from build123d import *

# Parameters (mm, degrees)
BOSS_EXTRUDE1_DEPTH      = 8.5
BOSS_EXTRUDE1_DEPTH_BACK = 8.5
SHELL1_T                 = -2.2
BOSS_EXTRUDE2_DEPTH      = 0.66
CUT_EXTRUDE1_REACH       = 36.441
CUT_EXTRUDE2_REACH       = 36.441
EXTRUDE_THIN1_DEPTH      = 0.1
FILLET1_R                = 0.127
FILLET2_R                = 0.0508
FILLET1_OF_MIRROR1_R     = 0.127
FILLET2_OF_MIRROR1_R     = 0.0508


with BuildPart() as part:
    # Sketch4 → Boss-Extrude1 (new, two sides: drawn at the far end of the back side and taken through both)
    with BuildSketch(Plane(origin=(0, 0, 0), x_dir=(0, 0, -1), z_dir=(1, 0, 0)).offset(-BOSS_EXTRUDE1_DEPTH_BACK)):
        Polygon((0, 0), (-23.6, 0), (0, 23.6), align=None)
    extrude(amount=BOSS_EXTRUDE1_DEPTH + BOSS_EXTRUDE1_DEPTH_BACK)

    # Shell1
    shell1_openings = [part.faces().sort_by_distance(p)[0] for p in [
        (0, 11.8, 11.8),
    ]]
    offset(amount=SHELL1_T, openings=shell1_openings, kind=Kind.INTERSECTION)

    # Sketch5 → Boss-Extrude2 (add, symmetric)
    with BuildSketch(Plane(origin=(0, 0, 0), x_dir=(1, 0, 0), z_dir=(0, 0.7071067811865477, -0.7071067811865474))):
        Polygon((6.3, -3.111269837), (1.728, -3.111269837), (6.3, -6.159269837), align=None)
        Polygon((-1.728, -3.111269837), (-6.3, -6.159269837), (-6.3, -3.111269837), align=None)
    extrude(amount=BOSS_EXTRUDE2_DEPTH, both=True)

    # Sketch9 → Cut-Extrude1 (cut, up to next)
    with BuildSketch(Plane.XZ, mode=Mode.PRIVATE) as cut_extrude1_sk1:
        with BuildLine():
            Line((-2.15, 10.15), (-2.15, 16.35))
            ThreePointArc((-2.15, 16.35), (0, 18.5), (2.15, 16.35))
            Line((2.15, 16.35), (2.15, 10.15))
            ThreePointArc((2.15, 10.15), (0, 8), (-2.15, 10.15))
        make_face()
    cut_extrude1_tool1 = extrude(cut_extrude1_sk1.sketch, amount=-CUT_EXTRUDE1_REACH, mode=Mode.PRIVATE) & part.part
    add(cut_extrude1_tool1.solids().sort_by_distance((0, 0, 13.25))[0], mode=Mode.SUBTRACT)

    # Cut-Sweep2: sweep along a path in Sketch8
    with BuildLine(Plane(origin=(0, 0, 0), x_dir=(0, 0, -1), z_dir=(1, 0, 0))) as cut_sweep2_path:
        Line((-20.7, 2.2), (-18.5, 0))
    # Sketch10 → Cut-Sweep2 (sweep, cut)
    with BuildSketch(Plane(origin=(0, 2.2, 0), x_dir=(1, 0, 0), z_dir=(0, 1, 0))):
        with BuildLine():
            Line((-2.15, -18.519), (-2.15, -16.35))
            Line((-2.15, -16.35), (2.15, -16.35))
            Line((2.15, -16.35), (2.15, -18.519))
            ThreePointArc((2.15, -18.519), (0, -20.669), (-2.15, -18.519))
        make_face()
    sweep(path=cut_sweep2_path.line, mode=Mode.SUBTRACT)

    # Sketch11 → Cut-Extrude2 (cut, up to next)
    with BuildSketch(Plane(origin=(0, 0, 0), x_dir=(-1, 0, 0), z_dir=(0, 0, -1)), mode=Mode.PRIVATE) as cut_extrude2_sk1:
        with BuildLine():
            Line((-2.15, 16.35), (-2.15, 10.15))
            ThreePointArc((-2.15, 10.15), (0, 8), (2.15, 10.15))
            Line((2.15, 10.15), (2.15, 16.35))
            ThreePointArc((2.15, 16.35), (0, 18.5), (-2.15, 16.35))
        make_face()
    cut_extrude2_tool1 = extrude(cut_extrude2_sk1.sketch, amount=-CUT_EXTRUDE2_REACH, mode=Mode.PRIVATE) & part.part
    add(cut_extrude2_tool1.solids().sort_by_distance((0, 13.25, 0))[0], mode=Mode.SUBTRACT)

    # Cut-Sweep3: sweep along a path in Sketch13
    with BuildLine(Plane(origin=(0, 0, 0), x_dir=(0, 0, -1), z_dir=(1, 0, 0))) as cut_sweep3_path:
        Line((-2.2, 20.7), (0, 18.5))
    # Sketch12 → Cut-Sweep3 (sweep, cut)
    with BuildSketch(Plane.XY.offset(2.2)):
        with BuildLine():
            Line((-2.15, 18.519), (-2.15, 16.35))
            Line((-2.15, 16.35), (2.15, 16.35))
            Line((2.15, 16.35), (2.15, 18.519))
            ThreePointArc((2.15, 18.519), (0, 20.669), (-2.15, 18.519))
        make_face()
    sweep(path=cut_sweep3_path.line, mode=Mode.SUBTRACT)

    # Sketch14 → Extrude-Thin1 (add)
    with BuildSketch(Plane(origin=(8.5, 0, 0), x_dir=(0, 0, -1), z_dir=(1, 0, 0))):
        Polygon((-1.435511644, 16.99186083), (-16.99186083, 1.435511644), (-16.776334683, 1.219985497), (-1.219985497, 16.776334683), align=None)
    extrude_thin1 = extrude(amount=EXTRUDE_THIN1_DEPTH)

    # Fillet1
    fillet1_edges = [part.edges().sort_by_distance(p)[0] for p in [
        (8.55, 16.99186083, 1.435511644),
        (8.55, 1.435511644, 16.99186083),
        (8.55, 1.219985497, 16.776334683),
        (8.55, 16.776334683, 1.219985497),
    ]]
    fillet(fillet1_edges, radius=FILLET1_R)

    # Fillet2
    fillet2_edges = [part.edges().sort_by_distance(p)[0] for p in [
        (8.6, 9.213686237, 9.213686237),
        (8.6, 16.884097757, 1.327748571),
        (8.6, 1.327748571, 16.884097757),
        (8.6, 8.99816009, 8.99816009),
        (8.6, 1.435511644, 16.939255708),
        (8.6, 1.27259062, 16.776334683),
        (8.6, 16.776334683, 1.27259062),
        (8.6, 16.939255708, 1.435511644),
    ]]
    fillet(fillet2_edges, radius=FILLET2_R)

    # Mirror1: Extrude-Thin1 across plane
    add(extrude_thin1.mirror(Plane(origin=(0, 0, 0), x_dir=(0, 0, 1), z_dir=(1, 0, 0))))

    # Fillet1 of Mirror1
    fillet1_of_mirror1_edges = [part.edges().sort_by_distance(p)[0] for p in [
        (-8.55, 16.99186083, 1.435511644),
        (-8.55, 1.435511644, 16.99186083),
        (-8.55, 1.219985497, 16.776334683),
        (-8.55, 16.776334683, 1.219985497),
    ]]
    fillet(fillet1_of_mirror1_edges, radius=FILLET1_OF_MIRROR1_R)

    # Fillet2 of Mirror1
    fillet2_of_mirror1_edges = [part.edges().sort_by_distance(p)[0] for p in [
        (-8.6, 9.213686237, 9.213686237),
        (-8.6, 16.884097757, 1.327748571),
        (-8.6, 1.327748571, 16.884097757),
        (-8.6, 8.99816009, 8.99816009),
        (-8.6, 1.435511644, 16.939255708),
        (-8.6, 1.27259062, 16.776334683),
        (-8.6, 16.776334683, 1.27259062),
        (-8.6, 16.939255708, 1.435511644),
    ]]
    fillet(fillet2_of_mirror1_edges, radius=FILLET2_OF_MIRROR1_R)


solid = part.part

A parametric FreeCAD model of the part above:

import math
import FreeCAD as App
import Part
import Sketcher

V = App.Vector
Q = App.Units.Quantity


def edges_at(feature, points):
    """Names of the edges that pass closest to the given points."""
    edges = feature.Shape.Edges
    near = lambda p: min(range(len(edges)), key=lambda i: edges[i].distToShape(Part.Vertex(*p))[0])
    return sorted({f"Edge{near(p) + 1}" for p in points})


def faces_at(feature, points):
    """Names of the faces that lie closest to the given points."""
    faces = feature.Shape.Faces
    near = lambda p: min(range(len(faces)), key=lambda i: faces[i].distToShape(Part.Vertex(*p))[0])
    return sorted({f"Face{near(p) + 1}" for p in points})

doc = App.newDocument("Part")
params = doc.addObject("Spreadsheet::Sheet", "Params")
for row, (alias, value) in enumerate([
    ("sketch1_width", "23.6 mm"),
    ("pad1_length", "8.5 mm"),
    ("pad1_length2", "8.5 mm"),
    ("thickness_wall", "2.2 mm"),
    ("pad2_length", "1.32 mm"),
    ("sketch3_radius", "2.15 mm"),
    ("sketch3_height", "6.2 mm"),
    ("sketch4_radius", "2.15 mm"),
    ("sketch6_radius", "2.15 mm"),
    ("sketch6_height", "6.2 mm"),
    ("sketch7_radius", "2.15 mm"),
    ("sketch9_length", "22 mm"),
    ("pad3_length", "0.1 mm"),
    ("fillet_radius", "0.127 mm"),
    ("fillet2_radius", "0.0508 mm"),
    ("fillet3_radius", "0.127 mm"),
    ("fillet4_radius", "0.0508 mm"),
], start=1):
    params.set(f"A{row}", alias)
    params.set(f"B{row}", "=" + value)
    params.setAlias(f"B{row}", alias)

body = doc.addObject("PartDesign::Body", "Body")

# Sketch on YZ plane
sketch1 = body.newObject("Sketcher::SketchObject", "Sketch")
sketch1.AttachmentSupport = (doc.getObject("YZ_Plane"), [""])
sketch1.MapMode = "FlatFace"
sketch1.addGeometry([
    Part.LineSegment(V(0, 23.6, 0), V(0, 0, 0)),
    Part.LineSegment(V(0, 0, 0), V(23.6, 0, 0)),
    Part.LineSegment(V(23.6, 0, 0), V(0, 23.6, 0)),
], False)
sketch1.addConstraint([
    Sketcher.Constraint("Coincident", 0, 2, 1, 1),
    Sketcher.Constraint("Coincident", 1, 2, 2, 1),
    Sketcher.Constraint("Coincident", 2, 2, 0, 1),
    Sketcher.Constraint("Vertical", 0),
    Sketcher.Constraint("Horizontal", 1),
    Sketcher.Constraint("Coincident", 0, 2, -1, 1),
    Sketcher.Constraint("Equal", 1, 0),
    Sketcher.Constraint("DistanceX", 1, 1, 1, 2, 23.6),
])
sketch1.setExpression("Constraints[7]", "Params.sketch1_width")
pad1 = body.newObject("PartDesign::Pad", "Pad")
pad1.Profile = sketch1
pad1.Type = "TwoLengths"
pad1.setExpression("Length", "Params.pad1_length")
pad1.setExpression("Length2", "Params.pad1_length2")
doc.recompute()

thickness = body.newObject("PartDesign::Thickness", "Thickness")
thickness.Base = (pad1, faces_at(pad1, [(0, 11.8, 11.8)]))
thickness.setExpression("Value", "Params.thickness_wall")
thickness.Reversed = True
thickness.Join = "Intersection"

# Sketch on an angled plane
sketch2 = body.newObject("Sketcher::SketchObject", "Sketch001")
sketch2.Placement = App.Placement(V(0, 0, 0), App.Rotation(V(1, 0, 0), V(0, -0.707106781, -0.707106781), V(0, 0.707106781, -0.707106781), "ZXY"))
sketch2.addGeometry([
    Part.LineSegment(V(6.3, -3.11127, 0), V(1.728, -3.11127, 0)),  # 0
    Part.LineSegment(V(1.728, -3.11127, 0), V(6.3, -6.15927, 0)),  # 1
    Part.LineSegment(V(6.3, -6.15927, 0), V(6.3, -3.11127, 0)),  # 2
    Part.LineSegment(V(-6.3, -6.15927, 0), V(-1.728, -3.11127, 0)),  # 3
    Part.LineSegment(V(-1.728, -3.11127, 0), V(-6.3, -3.11127, 0)),  # 4
    Part.LineSegment(V(-6.3, -3.11127, 0), V(-6.3, -6.15927, 0)),  # 5
], False)
sketch2.addConstraint([
    Sketcher.Constraint("Coincident", 0, 2, 1, 1),
    Sketcher.Constraint("Coincident", 1, 2, 2, 1),
    Sketcher.Constraint("Coincident", 2, 2, 0, 1),
    Sketcher.Constraint("Coincident", 3, 2, 4, 1),
    Sketcher.Constraint("Coincident", 4, 2, 5, 1),
    Sketcher.Constraint("Coincident", 5, 2, 3, 1),
    Sketcher.Constraint("Horizontal", 0),
    Sketcher.Constraint("Vertical", 2),
    Sketcher.Constraint("Horizontal", 4),
    Sketcher.Constraint("Vertical", 5),
    Sketcher.Constraint("Symmetric", 0, 2, 3, 2, -2),
    Sketcher.Constraint("Symmetric", 1, 2, 5, 2, -2),
    Sketcher.Constraint("DistanceX", -1, 1, 1, 2, 6.3),
    Sketcher.Constraint("DistanceX", 0, 2, 0, 1, 4.572),
    Sketcher.Constraint("DistanceY", 2, 1, 2, 2, 3.048),
    Sketcher.Constraint("DistanceY", 0, 2, -1, 1, 3.11127),
])
pad2 = body.newObject("PartDesign::Pad", "Pad001")
pad2.Profile = sketch2
pad2.setExpression("Length", "Params.pad2_length")
pad2.Midplane = True

# Sketch on XZ plane
sketch3 = body.newObject("Sketcher::SketchObject", "Sketch002")
sketch3.AttachmentSupport = (doc.getObject("XZ_Plane"), [""])
sketch3.MapMode = "FlatFace"
sketch3.addGeometry([
    Part.LineSegment(V(-2.15, 16.35, 0), V(-2.15, 10.15, 0)),
    Part.ArcOfCircle(Part.Circle(V(0, 10.15, 0), V(0, 0, 1), 2.15), math.radians(180), math.radians(360)),
    Part.LineSegment(V(2.15, 10.15, 0), V(2.15, 16.35, 0)),
    Part.ArcOfCircle(Part.Circle(V(0, 16.35, 0), V(0, 0, 1), 2.15), math.radians(0), math.radians(180)),
], False)
sketch3.addConstraint([
    Sketcher.Constraint("Tangent", 0, 2, 1, 1),
    Sketcher.Constraint("Tangent", 1, 2, 2, 1),
    Sketcher.Constraint("Tangent", 2, 2, 3, 1),
    Sketcher.Constraint("Tangent", 3, 2, 0, 1),
    Sketcher.Constraint("Vertical", 0),
    Sketcher.Constraint("Vertical", 2),
    Sketcher.Constraint("PointOnObject", 1, 3, -2),
    Sketcher.Constraint("Radius", 1, 2.15),
    Sketcher.Constraint("DistanceY", 0, 2, 0, 1, 6.2),
    Sketcher.Constraint("DistanceY", -1, 1, 1, 3, 10.15),
])
sketch3.setExpression("Constraints[7]", "Params.sketch3_radius")
sketch3.setExpression("Constraints[8]", "Params.sketch3_height")
pocket1 = body.newObject("PartDesign::Pocket", "Pocket")
pocket1.Profile = sketch3
pocket1.Type = "UpToFirst"

# Sketch on XZ plane
sketch4 = body.newObject("Sketcher::SketchObject", "Sketch003")
sketch4.AttachmentSupport = (doc.getObject("XZ_Plane"), [""])
sketch4.MapMode = "FlatFace"
sketch4.AttachmentOffset = App.Placement(V(0, 0, -2.2), App.Rotation())
sketch4.addGeometry([
    Part.LineSegment(V(-2.15, 16.35, 0), V(-2.15, 18.519, 0)),
    Part.ArcOfCircle(Part.Circle(V(0, 18.519, 0), V(0, 0, 1), 2.15), math.radians(0), math.radians(180)),
    Part.LineSegment(V(2.15, 18.519, 0), V(2.15, 16.35, 0)),
    Part.LineSegment(V(2.15, 16.35, 0), V(-2.15, 16.35, 0)),
], False)
sketch4.addConstraint([
    Sketcher.Constraint("Tangent", 0, 2, 1, 2),
    Sketcher.Constraint("Tangent", 1, 1, 2, 1),
    Sketcher.Constraint("Coincident", 2, 2, 3, 1),
    Sketcher.Constraint("Coincident", 3, 2, 0, 1),
    Sketcher.Constraint("Vertical", 0),
    Sketcher.Constraint("Vertical", 2),
    Sketcher.Constraint("Horizontal", 3),
    Sketcher.Constraint("PointOnObject", 1, 3, -2),
    Sketcher.Constraint("Radius", 1, 2.15),
    Sketcher.Constraint("DistanceY", 0, 1, 0, 2, 2.169),
    Sketcher.Constraint("DistanceY", -1, 1, 2, 2, 16.35),
])
sketch4.setExpression("Constraints[8]", "Params.sketch4_radius")

# Sketch on an angled plane
sketch5 = body.newObject("Sketcher::SketchObject", "Sketch004")
sketch5.Placement = App.Placement(V(0, -9.25, 9.25), App.Rotation(V(0, 0.707106781, 0.707106781), V(0.999999999, 0, 0), V(0, 0.707106781, -0.707106781), "ZXY"))
sketch5.addGeometry(Part.LineSegment(V(16.192745, 0, 0), V(13.081475, 0, 0)), False)
sketch5.addConstraint([
    Sketcher.Constraint("Horizontal", 0),
    Sketcher.Constraint("PointOnObject", 0, 1, -1),
    Sketcher.Constraint("DistanceX", 0, 2, 0, 1, 3.11127),
    Sketcher.Constraint("DistanceX", -1, 1, 0, 1, 16.192745),
])
doc.recompute()

subtractivepipe = body.newObject("PartDesign::SubtractivePipe", "SubtractivePipe")
subtractivepipe.Profile = sketch4
subtractivepipe.Spine = (sketch5, ["Edge1"])

# Sketch on XY plane
sketch6 = body.newObject("Sketcher::SketchObject", "Sketch005")
sketch6.AttachmentSupport = (doc.getObject("XY_Plane"), [""])
sketch6.MapMode = "FlatFace"
sketch6.addGeometry([
    Part.LineSegment(V(2.15, 16.35, 0), V(2.15, 10.15, 0)),
    Part.ArcOfCircle(Part.Circle(V(0, 10.15, 0), V(0, 0, 1), 2.15), math.radians(180), math.radians(360)),
    Part.LineSegment(V(-2.15, 10.15, 0), V(-2.15, 16.35, 0)),
    Part.ArcOfCircle(Part.Circle(V(0, 16.35, 0), V(0, 0, 1), 2.15), math.radians(0), math.radians(180)),
], False)
sketch6.addConstraint([
    Sketcher.Constraint("Tangent", 0, 2, 1, 2),
    Sketcher.Constraint("Tangent", 1, 1, 2, 1),
    Sketcher.Constraint("Tangent", 2, 2, 3, 2),
    Sketcher.Constraint("Tangent", 3, 1, 0, 1),
    Sketcher.Constraint("Vertical", 0),
    Sketcher.Constraint("Vertical", 2),
    Sketcher.Constraint("PointOnObject", 1, 3, -2),
    Sketcher.Constraint("Radius", 1, 2.15),
    Sketcher.Constraint("DistanceY", 0, 2, 0, 1, 6.2),
    Sketcher.Constraint("DistanceY", -1, 1, 1, 3, 10.15),
])
sketch6.setExpression("Constraints[7]", "Params.sketch6_radius")
sketch6.setExpression("Constraints[8]", "Params.sketch6_height")
pocket2 = body.newObject("PartDesign::Pocket", "Pocket001")
pocket2.Profile = sketch6
pocket2.Type = "UpToFirst"
pocket2.Reversed = True

# Sketch on XY plane
sketch7 = body.newObject("Sketcher::SketchObject", "Sketch006")
sketch7.AttachmentSupport = (doc.getObject("XY_Plane"), [""])
sketch7.MapMode = "FlatFace"
sketch7.AttachmentOffset = App.Placement(V(0, 0, 2.2), App.Rotation())
sketch7.addGeometry([
    Part.LineSegment(V(-2.15, 18.519, 0), V(-2.15, 16.35, 0)),
    Part.LineSegment(V(-2.15, 16.35, 0), V(2.15, 16.35, 0)),
    Part.LineSegment(V(2.15, 16.35, 0), V(2.15, 18.519, 0)),
    Part.ArcOfCircle(Part.Circle(V(0, 18.519, 0), V(0, 0, 1), 2.15), math.radians(0), math.radians(180)),
], False)
sketch7.addConstraint([
    Sketcher.Constraint("Coincident", 0, 2, 1, 1),
    Sketcher.Constraint("Coincident", 1, 2, 2, 1),
    Sketcher.Constraint("Tangent", 2, 2, 3, 1),
    Sketcher.Constraint("Tangent", 3, 2, 0, 1),
    Sketcher.Constraint("Vertical", 0),
    Sketcher.Constraint("Horizontal", 1),
    Sketcher.Constraint("Vertical", 2),
    Sketcher.Constraint("PointOnObject", 3, 3, -2),
    Sketcher.Constraint("Radius", 3, 2.15),
    Sketcher.Constraint("DistanceY", 0, 2, 0, 1, 2.169),
    Sketcher.Constraint("DistanceY", -1, 1, 0, 2, 16.35),
])
sketch7.setExpression("Constraints[8]", "Params.sketch7_radius")

# Sketch on an angled plane
sketch8 = body.newObject("Sketcher::SketchObject", "Sketch007")
sketch8.Placement = App.Placement(V(0, 9.25, -9.25), App.Rotation(V(0, 0.707106781, 0.707106781), V(0.999999999, 0, 0), V(0, 0.707106781, -0.707106781), "ZXY"))
sketch8.addGeometry(Part.LineSegment(V(16.192745, 0, 0), V(13.081475, 0, 0)), False)
sketch8.addConstraint([
    Sketcher.Constraint("Horizontal", 0),
    Sketcher.Constraint("PointOnObject", 0, 1, -1),
    Sketcher.Constraint("DistanceX", 0, 2, 0, 1, 3.11127),
    Sketcher.Constraint("DistanceX", -1, 1, 0, 1, 16.192745),
])
doc.recompute()

subtractivepipe2 = body.newObject("PartDesign::SubtractivePipe", "SubtractivePipe001")
subtractivepipe2.Profile = sketch7
subtractivepipe2.Spine = (sketch8, ["Edge1"])

# Sketch on YZ plane
sketch9 = body.newObject("Sketcher::SketchObject", "Sketch008")
sketch9.AttachmentSupport = (doc.getObject("YZ_Plane"), [""])
sketch9.MapMode = "FlatFace"
sketch9.AttachmentOffset = App.Placement(V(0, 0, 8.5), App.Rotation())
sketch9.addGeometry([
    Part.LineSegment(V(16.991861, 1.435512, 0), V(1.435512, 16.991861, 0)),
    Part.LineSegment(V(1.435512, 16.991861, 0), V(1.219985, 16.776335, 0)),
    Part.LineSegment(V(1.219985, 16.776335, 0), V(16.776335, 1.219985, 0)),
    Part.LineSegment(V(16.776335, 1.219985, 0), V(16.991861, 1.435512, 0)),
], False)
sketch9.addConstraint([
    Sketcher.Constraint("Coincident", 0, 2, 1, 1),
    Sketcher.Constraint("Coincident", 1, 2, 2, 1),
    Sketcher.Constraint("Coincident", 2, 2, 3, 1),
    Sketcher.Constraint("Coincident", 3, 2, 0, 1),
    Sketcher.Constraint("Perpendicular", 0, 1),
    Sketcher.Constraint("Perpendicular", 1, 2),
    Sketcher.Constraint("Perpendicular", 2, 3),
    Sketcher.Constraint("Angle", 0, Q("135 deg")),
    Sketcher.Constraint("Distance", 0, 22.0),
    Sketcher.Constraint("Distance", 1, 0.3048),
    Sketcher.Constraint("DistanceX", -1, 1, 0, 2, 1.435512),
    Sketcher.Constraint("DistanceY", -1, 1, 0, 2, 16.991861),
])
sketch9.setExpression("Constraints[8]", "Params.sketch9_length")
pad3 = body.newObject("PartDesign::Pad", "Pad002")
pad3.Profile = sketch9
pad3.setExpression("Length", "Params.pad3_length")
doc.recompute()

fillet = body.newObject("PartDesign::Fillet", "Fillet")
fillet.Base = (pad3, edges_at(pad3, [
    (8.55, 16.992, 1.436),
    (8.55, 1.436, 16.992),
    (8.55, 1.22, 16.776),
    (8.55, 16.776, 1.22),
]))
fillet.setExpression("Radius", "Params.fillet_radius")
doc.recompute()

fillet2 = body.newObject("PartDesign::Fillet", "Fillet001")
fillet2.Base = (fillet, edges_at(fillet, [
    (8.6, 9.214, 9.214),
    (8.6, 16.884, 1.328),
    (8.6, 1.328, 16.884),
    (8.6, 8.998, 8.998),
    (8.6, 1.436, 16.939),
    (8.6, 1.273, 16.776),
    (8.6, 16.776, 1.273),
    (8.6, 16.939, 1.436),
]))
fillet2.setExpression("Radius", "Params.fillet2_radius")
doc.recompute()

mirrored = body.newObject("PartDesign::Mirrored", "Mirrored")
mirrored.Originals = [pad3]
mirrored.MirrorPlane = (doc.getObject("YZ_Plane"), [""])
body.Tip = mirrored
doc.recompute()

fillet3 = body.newObject("PartDesign::Fillet", "Fillet002")
fillet3.Base = (mirrored, edges_at(mirrored, [
    (-8.55, 16.992, 1.436),
    (-8.55, 1.436, 16.992),
    (-8.55, 1.22, 16.776),
    (-8.55, 16.776, 1.22),
]))
fillet3.setExpression("Radius", "Params.fillet3_radius")
doc.recompute()

fillet4 = body.newObject("PartDesign::Fillet", "Fillet003")
fillet4.Base = (fillet3, edges_at(fillet3, [
    (-8.6, 9.214, 9.214),
    (-8.6, 16.884, 1.328),
    (-8.6, 1.328, 16.884),
    (-8.6, 8.998, 8.998),
    (-8.6, 1.436, 16.939),
    (-8.6, 1.273, 16.776),
    (-8.6, 16.776, 1.273),
    (-8.6, 16.939, 1.436),
]))
fillet4.setExpression("Radius", "Params.fillet4_radius")

doc.recompute()
